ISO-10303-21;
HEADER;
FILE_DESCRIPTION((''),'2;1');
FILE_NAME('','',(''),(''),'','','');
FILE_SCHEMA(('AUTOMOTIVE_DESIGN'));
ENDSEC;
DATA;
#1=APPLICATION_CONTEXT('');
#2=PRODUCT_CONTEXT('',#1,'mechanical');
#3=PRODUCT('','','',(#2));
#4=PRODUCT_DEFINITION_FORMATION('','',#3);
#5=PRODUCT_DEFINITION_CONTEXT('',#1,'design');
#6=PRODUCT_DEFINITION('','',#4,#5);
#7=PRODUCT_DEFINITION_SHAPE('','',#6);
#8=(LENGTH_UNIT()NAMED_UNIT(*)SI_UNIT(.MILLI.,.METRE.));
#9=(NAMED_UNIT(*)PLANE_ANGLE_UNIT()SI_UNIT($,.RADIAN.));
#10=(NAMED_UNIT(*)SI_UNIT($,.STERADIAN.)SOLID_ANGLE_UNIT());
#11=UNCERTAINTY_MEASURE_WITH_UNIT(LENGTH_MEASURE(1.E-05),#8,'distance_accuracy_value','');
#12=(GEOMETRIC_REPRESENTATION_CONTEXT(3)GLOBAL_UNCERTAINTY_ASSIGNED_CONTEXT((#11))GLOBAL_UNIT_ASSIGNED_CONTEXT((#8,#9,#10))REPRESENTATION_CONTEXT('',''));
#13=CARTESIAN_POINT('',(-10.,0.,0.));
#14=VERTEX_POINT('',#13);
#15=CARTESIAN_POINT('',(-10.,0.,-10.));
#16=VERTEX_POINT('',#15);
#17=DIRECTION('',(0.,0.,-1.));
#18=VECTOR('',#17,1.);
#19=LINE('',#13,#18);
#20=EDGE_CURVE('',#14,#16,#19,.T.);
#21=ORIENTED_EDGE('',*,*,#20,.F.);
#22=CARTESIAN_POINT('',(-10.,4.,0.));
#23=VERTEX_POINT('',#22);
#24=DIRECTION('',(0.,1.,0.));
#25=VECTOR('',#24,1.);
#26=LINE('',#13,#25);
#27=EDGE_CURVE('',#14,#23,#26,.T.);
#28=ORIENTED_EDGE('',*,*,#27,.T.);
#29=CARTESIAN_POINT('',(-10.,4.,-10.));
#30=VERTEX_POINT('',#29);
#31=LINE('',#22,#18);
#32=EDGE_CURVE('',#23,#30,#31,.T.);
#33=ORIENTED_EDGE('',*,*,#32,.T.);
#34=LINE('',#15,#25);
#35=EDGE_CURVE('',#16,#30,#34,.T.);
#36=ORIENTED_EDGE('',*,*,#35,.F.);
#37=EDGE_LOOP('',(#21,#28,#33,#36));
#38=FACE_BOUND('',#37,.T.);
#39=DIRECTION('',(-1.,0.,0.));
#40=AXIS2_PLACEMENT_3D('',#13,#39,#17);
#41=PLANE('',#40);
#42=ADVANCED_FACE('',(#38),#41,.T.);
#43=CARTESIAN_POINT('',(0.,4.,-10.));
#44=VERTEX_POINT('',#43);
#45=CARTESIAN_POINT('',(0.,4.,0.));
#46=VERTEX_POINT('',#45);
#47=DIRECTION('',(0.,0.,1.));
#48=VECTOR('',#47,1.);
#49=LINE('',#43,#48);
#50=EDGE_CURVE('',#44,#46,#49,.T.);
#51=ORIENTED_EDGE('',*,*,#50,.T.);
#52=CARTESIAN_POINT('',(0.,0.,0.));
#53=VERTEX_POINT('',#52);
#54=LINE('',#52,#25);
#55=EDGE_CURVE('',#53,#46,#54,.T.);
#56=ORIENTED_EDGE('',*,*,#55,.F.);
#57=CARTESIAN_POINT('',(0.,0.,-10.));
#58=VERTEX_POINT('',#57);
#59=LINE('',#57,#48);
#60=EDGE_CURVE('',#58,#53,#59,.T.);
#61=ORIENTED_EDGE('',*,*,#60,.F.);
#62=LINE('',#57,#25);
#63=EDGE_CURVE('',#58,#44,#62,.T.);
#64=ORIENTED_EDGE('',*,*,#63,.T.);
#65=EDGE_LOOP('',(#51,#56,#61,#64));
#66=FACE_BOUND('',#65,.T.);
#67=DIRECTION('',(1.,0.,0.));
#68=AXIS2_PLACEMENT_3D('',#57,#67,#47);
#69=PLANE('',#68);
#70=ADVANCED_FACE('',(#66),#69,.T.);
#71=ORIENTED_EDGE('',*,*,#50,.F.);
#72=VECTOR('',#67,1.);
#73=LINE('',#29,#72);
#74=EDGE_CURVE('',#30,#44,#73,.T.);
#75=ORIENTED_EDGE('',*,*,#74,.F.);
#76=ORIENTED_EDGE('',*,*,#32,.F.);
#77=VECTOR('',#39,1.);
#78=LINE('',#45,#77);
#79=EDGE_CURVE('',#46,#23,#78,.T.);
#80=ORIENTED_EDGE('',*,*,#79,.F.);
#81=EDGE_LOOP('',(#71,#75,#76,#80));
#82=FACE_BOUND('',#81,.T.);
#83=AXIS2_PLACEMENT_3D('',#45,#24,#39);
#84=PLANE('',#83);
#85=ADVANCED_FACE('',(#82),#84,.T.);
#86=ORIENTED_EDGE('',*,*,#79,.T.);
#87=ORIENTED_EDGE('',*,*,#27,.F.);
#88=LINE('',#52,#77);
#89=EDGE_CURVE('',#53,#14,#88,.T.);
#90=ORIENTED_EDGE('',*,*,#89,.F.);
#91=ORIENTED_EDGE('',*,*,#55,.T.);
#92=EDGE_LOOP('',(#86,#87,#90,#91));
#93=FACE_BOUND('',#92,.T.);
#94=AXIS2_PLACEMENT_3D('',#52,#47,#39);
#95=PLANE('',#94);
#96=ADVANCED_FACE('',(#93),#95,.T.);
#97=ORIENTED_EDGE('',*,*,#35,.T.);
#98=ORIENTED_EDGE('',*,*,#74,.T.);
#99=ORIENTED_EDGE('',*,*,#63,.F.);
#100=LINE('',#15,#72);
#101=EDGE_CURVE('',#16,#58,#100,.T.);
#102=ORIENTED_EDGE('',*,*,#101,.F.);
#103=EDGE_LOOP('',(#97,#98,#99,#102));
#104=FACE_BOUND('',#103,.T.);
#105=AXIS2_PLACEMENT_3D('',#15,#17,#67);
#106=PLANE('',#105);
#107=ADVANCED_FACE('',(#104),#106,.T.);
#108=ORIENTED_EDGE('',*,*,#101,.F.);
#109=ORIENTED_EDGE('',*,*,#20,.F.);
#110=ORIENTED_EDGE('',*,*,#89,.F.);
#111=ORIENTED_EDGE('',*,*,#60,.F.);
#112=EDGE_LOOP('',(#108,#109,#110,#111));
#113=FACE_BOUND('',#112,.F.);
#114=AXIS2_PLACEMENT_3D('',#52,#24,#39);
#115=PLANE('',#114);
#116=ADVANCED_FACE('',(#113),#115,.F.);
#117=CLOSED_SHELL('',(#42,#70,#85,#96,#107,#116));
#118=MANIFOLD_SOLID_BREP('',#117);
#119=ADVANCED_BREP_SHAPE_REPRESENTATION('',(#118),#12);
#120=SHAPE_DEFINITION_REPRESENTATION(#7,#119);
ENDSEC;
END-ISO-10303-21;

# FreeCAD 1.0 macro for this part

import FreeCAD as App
import Part
import Sketcher

doc = App.newDocument("Part")
params = doc.addObject("Spreadsheet::Sheet", "Params")
for row, (alias, value) in enumerate([
    ("sketch1_width", "10 mm"),
    ("pad1_length", "4 mm"),
], start=1):
    params.set(f"A{row}", alias)
    params.set(f"B{row}", "=" + value)
    params.setAlias(f"B{row}", alias)

body = doc.addObject("PartDesign::Body", "Body")

sketch1 = body.newObject("Sketcher::SketchObject", "Sketch")
sketch1.AttachmentSupport = (doc.getObject("XZ_Plane"), [""])
sketch1.MapMode = "FlatFace"
sketch1.addGeometry(Part.LineSegment(App.Vector(-10, 0, 0), App.Vector(0, 0, 0)), False)
sketch1.addGeometry(Part.LineSegment(App.Vector(0, 0, 0), App.Vector(0, -10, 0)), False)
sketch1.addGeometry(Part.LineSegment(App.Vector(0, -10, 0), App.Vector(-10, -10, 0)), False)
sketch1.addGeometry(Part.LineSegment(App.Vector(-10, -10, 0), App.Vector(-10, 0, 0)), False)
sketch1.addConstraint(Sketcher.Constraint("Coincident", 0, 2, 1, 1))
sketch1.addConstraint(Sketcher.Constraint("Coincident", 1, 2, 2, 1))
sketch1.addConstraint(Sketcher.Constraint("Coincident", 2, 2, 3, 1))
sketch1.addConstraint(Sketcher.Constraint("Coincident", 3, 2, 0, 1))
sketch1.addConstraint(Sketcher.Constraint("Horizontal", 0))
sketch1.addConstraint(Sketcher.Constraint("Vertical", 1))
sketch1.addConstraint(Sketcher.Constraint("Horizontal", 2))
sketch1.addConstraint(Sketcher.Constraint("Vertical", 3))
sketch1.addConstraint(Sketcher.Constraint("Coincident", 0, 2, -1, 1))
sketch1.addConstraint(Sketcher.Constraint("Equal", 2, 1))
sketch1.addConstraint(Sketcher.Constraint("DistanceX", 0, 1, 0, 2, 10.0))
sketch1.setExpression("Constraints[10]", "Params.sketch1_width")
pad1 = body.newObject("PartDesign::Pad", "Pad")
pad1.Profile = sketch1
pad1.setExpression("Length", "Params.pad1_length")
pad1.Reversed = True

doc.recompute()
